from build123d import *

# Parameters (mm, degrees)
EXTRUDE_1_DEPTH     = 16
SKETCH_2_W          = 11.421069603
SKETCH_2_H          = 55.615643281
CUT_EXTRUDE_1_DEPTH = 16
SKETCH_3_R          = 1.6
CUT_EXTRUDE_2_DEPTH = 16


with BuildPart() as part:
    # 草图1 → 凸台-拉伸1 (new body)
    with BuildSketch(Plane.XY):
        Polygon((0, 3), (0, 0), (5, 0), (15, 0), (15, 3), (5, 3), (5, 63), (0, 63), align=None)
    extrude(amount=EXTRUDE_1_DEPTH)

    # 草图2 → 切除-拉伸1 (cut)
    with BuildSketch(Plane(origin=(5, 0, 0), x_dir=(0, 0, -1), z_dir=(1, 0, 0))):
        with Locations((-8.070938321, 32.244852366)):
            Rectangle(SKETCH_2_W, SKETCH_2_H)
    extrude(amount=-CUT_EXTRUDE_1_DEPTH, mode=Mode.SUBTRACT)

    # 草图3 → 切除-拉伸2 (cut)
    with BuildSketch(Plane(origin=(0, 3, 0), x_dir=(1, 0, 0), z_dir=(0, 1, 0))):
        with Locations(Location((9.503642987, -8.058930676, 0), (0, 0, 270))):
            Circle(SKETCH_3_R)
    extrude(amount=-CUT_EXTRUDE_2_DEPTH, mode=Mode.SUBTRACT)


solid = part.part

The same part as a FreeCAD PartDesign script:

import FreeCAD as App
import Part
import Sketcher

V = App.Vector


def add_polygon(sketch, points):
    """Adds a closed chain of lines whose ends are joined by coincident constraints."""
    first, n = sketch.GeometryCount, len(points)
    for a, b in zip(points, points[1:] + points[:1]):
        sketch.addGeometry(Part.LineSegment(App.Vector(*a, 0), App.Vector(*b, 0)), False)
    for i in range(n):
        sketch.addConstraint(Sketcher.Constraint("Coincident", first + i, 2, first + (i + 1) % n, 1))

doc = App.newDocument("Part")
body = doc.addObject("PartDesign::Body", "Body")

sketch1 = body.newObject("Sketcher::SketchObject", "Sketch")
sketch1.AttachmentSupport = (doc.getObject("XY_Plane"), [""])
sketch1.MapMode = "FlatFace"
add_polygon(sketch1, [(0, 0), (15, 0), (15, 3), (5, 3), (5, 63), (0, 63)])
sketch1.addConstraint(Sketcher.Constraint("Horizontal", 0))
sketch1.addConstraint(Sketcher.Constraint("Vertical", 1))
sketch1.addConstraint(Sketcher.Constraint("Horizontal", 2))
sketch1.addConstraint(Sketcher.Constraint("Vertical", 3))
sketch1.addConstraint(Sketcher.Constraint("Horizontal", 4))
sketch1.addConstraint(Sketcher.Constraint("Vertical", 5))
sketch1.addConstraint(Sketcher.Constraint("Coincident", 5, 2, -1, 1))
sketch1.addConstraint(Sketcher.Constraint("DistanceX", 0, 1, 0, 2, 15.0))
sketch1.addConstraint(Sketcher.Constraint("DistanceX", 2, 2, 2, 1, 10.0))
sketch1.addConstraint(Sketcher.Constraint("DistanceY", 1, 1, 1, 2, 3.0))
sketch1.addConstraint(Sketcher.Constraint("DistanceY", 3, 1, 3, 2, 60.0))
pad1 = body.newObject("PartDesign::Pad", "Pad")
pad1.Profile = sketch1
pad1.Length = 16

sketch2 = body.newObject("Sketcher::SketchObject", "Sketch001")
sketch2.AttachmentSupport = (doc.getObject("YZ_Plane"), [""])
sketch2.MapMode = "FlatFace"
sketch2.AttachmentOffset = App.Placement(V(0, 0, 5), App.Rotation())
add_polygon(sketch2, [(60, 14), (4, 14), (4, 2), (60, 2)])
sketch2.addConstraint(Sketcher.Constraint("Horizontal", 0))
sketch2.addConstraint(Sketcher.Constraint("Vertical", 1))
sketch2.addConstraint(Sketcher.Constraint("Horizontal", 2))
sketch2.addConstraint(Sketcher.Constraint("Vertical", 3))
sketch2.addConstraint(Sketcher.Constraint("DistanceY", 1, 2, 1, 1, 11.42107))
sketch2.addConstraint(Sketcher.Constraint("DistanceX", 0, 2, 0, 1, 55.615643))
sketch2.addConstraint(Sketcher.Constraint("DistanceX", -1, 1, 0, 2, 4.437031))
sketch2.addConstraint(Sketcher.Constraint("DistanceY", -1, 1, 0, 2, 13.781473))
pocket1 = body.newObject("PartDesign::Pocket", "Pocket")
pocket1.Profile = sketch2
pocket1.Length = 16

sketch3 = body.newObject("Sketcher::SketchObject", "Sketch002")
sketch3.AttachmentSupport = (doc.getObject("XZ_Plane"), [""])
sketch3.MapMode = "FlatFace"
sketch3.AttachmentOffset = App.Placement(V(0, 0, -3), App.Rotation())
sketch3.addGeometry(Part.Circle(V(9.5, 8.1, 0), V(0, 0, 1), 1.6), False)
sketch3.addConstraint(Sketcher.Constraint("Diameter", 0, 3.2))
sketch3.addConstraint(Sketcher.Constraint("DistanceY", -1, 1, 0, 3, 8.058931))
sketch3.addConstraint(Sketcher.Constraint("DistanceX", -1, 1, 0, 3, 9.503643))
pocket2 = body.newObject("PartDesign::Pocket", "Pocket001")
pocket2.Profile = sketch3
pocket2.Length = 16
pocket2.Reversed = True

doc.recompute()
